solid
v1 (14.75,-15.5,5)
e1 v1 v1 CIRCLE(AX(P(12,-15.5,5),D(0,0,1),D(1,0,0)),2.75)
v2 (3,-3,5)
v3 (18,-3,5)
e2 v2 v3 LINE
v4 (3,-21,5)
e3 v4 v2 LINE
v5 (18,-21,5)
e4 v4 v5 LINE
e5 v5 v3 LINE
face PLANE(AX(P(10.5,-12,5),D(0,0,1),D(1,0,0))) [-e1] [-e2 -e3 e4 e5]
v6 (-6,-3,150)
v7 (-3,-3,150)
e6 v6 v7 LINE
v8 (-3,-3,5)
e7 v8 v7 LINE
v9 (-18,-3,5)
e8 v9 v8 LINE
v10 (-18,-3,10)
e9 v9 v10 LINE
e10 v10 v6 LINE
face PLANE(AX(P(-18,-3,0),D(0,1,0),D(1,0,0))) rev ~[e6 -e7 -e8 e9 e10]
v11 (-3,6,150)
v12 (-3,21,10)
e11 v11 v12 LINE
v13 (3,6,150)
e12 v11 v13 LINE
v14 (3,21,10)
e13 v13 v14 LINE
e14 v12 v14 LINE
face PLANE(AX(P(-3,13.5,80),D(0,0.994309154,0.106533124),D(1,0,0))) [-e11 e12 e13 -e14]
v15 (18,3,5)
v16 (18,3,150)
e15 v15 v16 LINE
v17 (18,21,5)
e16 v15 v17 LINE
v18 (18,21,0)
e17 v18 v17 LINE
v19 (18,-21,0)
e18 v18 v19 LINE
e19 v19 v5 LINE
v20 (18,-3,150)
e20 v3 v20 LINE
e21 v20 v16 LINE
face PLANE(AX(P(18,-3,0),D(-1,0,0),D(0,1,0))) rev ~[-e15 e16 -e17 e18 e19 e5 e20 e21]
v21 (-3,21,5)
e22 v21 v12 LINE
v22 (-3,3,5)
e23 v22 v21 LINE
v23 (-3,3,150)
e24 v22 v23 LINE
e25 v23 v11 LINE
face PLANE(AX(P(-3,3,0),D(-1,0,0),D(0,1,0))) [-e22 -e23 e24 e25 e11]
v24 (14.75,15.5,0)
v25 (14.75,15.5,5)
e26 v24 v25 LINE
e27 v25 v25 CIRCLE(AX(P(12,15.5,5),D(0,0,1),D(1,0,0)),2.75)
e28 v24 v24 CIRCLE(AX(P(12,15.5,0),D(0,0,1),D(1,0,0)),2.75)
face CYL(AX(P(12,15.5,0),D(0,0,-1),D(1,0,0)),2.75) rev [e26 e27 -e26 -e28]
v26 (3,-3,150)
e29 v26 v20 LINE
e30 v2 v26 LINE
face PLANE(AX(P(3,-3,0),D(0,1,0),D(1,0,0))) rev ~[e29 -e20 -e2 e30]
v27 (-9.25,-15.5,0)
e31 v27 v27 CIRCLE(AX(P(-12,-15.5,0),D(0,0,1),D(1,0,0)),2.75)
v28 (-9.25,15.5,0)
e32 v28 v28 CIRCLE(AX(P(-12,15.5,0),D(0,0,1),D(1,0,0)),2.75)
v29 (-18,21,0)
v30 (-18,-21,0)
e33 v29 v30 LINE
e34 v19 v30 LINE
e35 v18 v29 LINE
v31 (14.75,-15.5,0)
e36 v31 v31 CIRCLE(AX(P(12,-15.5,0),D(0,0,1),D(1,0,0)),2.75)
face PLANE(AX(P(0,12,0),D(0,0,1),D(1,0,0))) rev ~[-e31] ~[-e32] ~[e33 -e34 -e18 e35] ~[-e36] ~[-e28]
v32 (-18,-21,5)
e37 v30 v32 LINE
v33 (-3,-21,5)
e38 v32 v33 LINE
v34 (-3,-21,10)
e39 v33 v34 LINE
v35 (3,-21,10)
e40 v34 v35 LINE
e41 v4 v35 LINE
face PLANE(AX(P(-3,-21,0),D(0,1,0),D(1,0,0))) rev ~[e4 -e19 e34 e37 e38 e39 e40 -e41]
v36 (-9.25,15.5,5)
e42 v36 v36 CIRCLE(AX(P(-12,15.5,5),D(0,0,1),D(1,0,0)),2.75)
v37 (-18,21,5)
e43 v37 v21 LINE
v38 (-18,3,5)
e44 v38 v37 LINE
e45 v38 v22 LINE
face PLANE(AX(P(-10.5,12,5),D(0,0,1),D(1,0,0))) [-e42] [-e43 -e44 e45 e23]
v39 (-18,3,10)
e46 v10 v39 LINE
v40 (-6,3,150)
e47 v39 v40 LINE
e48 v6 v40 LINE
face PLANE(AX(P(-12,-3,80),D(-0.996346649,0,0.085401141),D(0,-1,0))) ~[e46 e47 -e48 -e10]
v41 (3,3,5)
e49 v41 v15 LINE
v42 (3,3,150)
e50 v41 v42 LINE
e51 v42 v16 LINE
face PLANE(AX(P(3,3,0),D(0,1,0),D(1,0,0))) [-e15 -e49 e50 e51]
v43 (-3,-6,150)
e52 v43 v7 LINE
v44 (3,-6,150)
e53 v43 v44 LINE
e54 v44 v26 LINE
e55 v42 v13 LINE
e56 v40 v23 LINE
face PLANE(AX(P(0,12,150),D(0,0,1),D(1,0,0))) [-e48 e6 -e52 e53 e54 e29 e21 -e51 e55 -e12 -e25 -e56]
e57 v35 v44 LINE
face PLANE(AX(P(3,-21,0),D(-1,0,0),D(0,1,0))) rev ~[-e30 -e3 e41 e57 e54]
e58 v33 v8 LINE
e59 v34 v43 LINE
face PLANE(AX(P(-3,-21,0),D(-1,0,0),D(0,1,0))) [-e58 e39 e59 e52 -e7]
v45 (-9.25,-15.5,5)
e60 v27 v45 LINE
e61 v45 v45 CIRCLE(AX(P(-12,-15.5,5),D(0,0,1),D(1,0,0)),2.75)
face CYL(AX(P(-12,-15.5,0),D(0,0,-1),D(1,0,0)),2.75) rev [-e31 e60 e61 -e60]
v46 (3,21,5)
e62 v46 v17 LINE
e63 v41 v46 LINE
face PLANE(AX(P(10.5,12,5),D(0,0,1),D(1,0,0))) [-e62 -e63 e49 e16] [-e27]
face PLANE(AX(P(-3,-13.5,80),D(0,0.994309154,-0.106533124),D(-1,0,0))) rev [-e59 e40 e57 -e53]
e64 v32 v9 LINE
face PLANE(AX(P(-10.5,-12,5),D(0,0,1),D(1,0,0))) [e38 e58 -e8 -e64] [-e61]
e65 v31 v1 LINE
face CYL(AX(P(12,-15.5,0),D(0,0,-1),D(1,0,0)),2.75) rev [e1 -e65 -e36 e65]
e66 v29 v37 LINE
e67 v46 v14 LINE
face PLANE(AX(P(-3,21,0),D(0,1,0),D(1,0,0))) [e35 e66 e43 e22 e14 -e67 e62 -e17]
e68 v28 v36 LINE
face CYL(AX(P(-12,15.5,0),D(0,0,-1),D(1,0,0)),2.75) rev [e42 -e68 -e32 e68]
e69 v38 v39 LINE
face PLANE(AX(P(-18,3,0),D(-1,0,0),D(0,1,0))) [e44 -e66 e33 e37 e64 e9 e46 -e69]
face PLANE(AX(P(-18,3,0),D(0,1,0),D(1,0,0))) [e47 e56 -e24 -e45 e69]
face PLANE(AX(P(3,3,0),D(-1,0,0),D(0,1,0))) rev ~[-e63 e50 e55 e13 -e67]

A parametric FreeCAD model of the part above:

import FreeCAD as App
import Part
import Sketcher
from FreeCAD import Vector
Q = App.Units.Quantity


def edges_at(feature, points):
    """Names of the edges that pass closest to the given points."""
    edges = feature.Shape.Edges
    near = lambda p: min(range(len(edges)), key=lambda i: edges[i].distToShape(Part.Vertex(*p))[0])
    return sorted({f"Edge{near(p) + 1}" for p in points})


def add_polygon(sketch, points):
    """Adds a closed chain of lines whose ends are joined by coincident constraints."""
    first, n = sketch.GeometryCount, len(points)
    for a, b in zip(points, points[1:] + points[:1]):
        sketch.addGeometry(Part.LineSegment(App.Vector(*a, 0), App.Vector(*b, 0)), False)
    for i in range(n):
        sketch.addConstraint(Sketcher.Constraint("Coincident", first + i, 2, first + (i + 1) % n, 1))

doc = App.newDocument("Part")
body = doc.addObject("PartDesign::Body", "Body")

# Sketch on XY plane
sketch1 = body.newObject("Sketcher::SketchObject", "Sketch")
sketch1.AttachmentSupport = (doc.getObject("XY_Plane"), [""])
sketch1.MapMode = "FlatFace"
add_polygon(sketch1, [(3, 21), (3, 3), (18, 3), (18, 21)])  # lines 0-3
sketch1.addGeometry(Part.Circle(Vector(12, 15.5, 0), Vector(0, 0, 1), 2.8), False)  # 4
sketch1.addConstraint([
    Sketcher.Constraint("Vertical", 0),
    Sketcher.Constraint("Horizontal", 1),
    Sketcher.Constraint("Vertical", 2),
    Sketcher.Constraint("Horizontal", 3),
    Sketcher.Constraint("Diameter", 4, Q("5.5 mm")),
    Sketcher.Constraint("DistanceX", 1, 1, 1, 2, Q("15 mm")),
    Sketcher.Constraint("DistanceY", 0, 2, 0, 1, Q("18 mm")),
    Sketcher.Constraint("DistanceX", -1, 1, 4, 3, Q("12 mm")),
    Sketcher.Constraint("DistanceX", -1, 1, 0, 2, Q("3 mm")),
    Sketcher.Constraint("DistanceY", -1, 1, 0, 2, Q("3 mm")),
    Sketcher.Constraint("DistanceY", -1, 1, 4, 3, Q("15.5 mm")),
])
pad1 = body.newObject("PartDesign::Pad", "Pad")
pad1.Profile = sketch1
pad1.Length = 5
body2 = doc.addObject("PartDesign::Body", "Body001")

# Sketch on XY plane
sketch2 = body2.newObject("Sketcher::SketchObject", "Sketch001")
sketch2.AttachmentSupport = (doc.getObject("XY_Plane001"), [""])
sketch2.MapMode = "FlatFace"
add_polygon(sketch2, [(-18, 21), (-18, 3), (-3, 3), (-3, 21)])  # lines 0-3
sketch2.addGeometry(Part.Circle(Vector(-12, 15.5, 0), Vector(0, 0, 1), 2.8), False)  # 4
sketch2.addConstraint([
    Sketcher.Constraint("Vertical", 0),
    Sketcher.Constraint("Horizontal", 1),
    Sketcher.Constraint("Vertical", 2),
    Sketcher.Constraint("Horizontal", 3),
    Sketcher.Constraint("Diameter", 4, Q("5.5 mm")),
    Sketcher.Constraint("DistanceX", 1, 1, 1, 2, Q("15 mm")),
    Sketcher.Constraint("DistanceY", 0, 2, 0, 1, Q("18 mm")),
    Sketcher.Constraint("DistanceX", 4, 3, -1, 1, Q("12 mm")),
    Sketcher.Constraint("DistanceX", 0, 2, -1, 1, Q("18 mm")),
    Sketcher.Constraint("DistanceY", -1, 1, 0, 2, Q("3 mm")),
    Sketcher.Constraint("DistanceY", -1, 1, 4, 3, Q("15.5 mm")),
])
pad2 = body2.newObject("PartDesign::Pad", "Pad001")
pad2.Profile = sketch2
pad2.Length = 5
body3 = doc.addObject("PartDesign::Body", "Body002")

# Sketch on XY plane
sketch3 = body3.newObject("Sketcher::SketchObject", "Sketch002")
sketch3.AttachmentSupport = (doc.getObject("XY_Plane002"), [""])
sketch3.MapMode = "FlatFace"
add_polygon(sketch3, [(-18, -3), (-18, -21), (-3, -21), (-3, -3)])  # lines 0-3
sketch3.addGeometry(Part.Circle(Vector(-12, -15.5, 0), Vector(0, 0, 1), 2.8), False)  # 4
sketch3.addConstraint([
    Sketcher.Constraint("Vertical", 0),
    Sketcher.Constraint("Horizontal", 1),
    Sketcher.Constraint("Vertical", 2),
    Sketcher.Constraint("Horizontal", 3),
    Sketcher.Constraint("Diameter", 4, Q("5.5 mm")),
    Sketcher.Constraint("DistanceX", 1, 1, 1, 2, Q("15 mm")),
    Sketcher.Constraint("DistanceY", 0, 2, 0, 1, Q("18 mm")),
    Sketcher.Constraint("DistanceX", 4, 3, -1, 1, Q("12 mm")),
    Sketcher.Constraint("DistanceX", 0, 2, -1, 1, Q("18 mm")),
    Sketcher.Constraint("DistanceY", 0, 2, -1, 1, Q("21 mm")),
    Sketcher.Constraint("DistanceY", 4, 3, -1, 1, Q("15.5 mm")),
])
pad3 = body3.newObject("PartDesign::Pad", "Pad002")
pad3.Profile = sketch3
pad3.Length = 5
body4 = doc.addObject("PartDesign::Body", "Body003")

# Sketch on XY plane
sketch4 = body4.newObject("Sketcher::SketchObject", "Sketch003")
sketch4.AttachmentSupport = (doc.getObject("XY_Plane003"), [""])
sketch4.MapMode = "FlatFace"
add_polygon(sketch4, [(3, -3), (3, -21), (18, -21), (18, -3)])  # lines 0-3
sketch4.addGeometry(Part.Circle(Vector(12, -15.5, 0), Vector(0, 0, 1), 2.8), False)  # 4
sketch4.addConstraint([
    Sketcher.Constraint("Vertical", 0),
    Sketcher.Constraint("Horizontal", 1),
    Sketcher.Constraint("Vertical", 2),
    Sketcher.Constraint("Horizontal", 3),
    Sketcher.Constraint("Diameter", 4, Q("5.5 mm")),
    Sketcher.Constraint("DistanceX", 1, 1, 1, 2, Q("15 mm")),
    Sketcher.Constraint("DistanceY", 0, 2, 0, 1, Q("18 mm")),
    Sketcher.Constraint("DistanceX", -1, 1, 4, 3, Q("12 mm")),
    Sketcher.Constraint("DistanceX", -1, 1, 0, 2, Q("3 mm")),
    Sketcher.Constraint("DistanceY", 0, 2, -1, 1, Q("21 mm")),
    Sketcher.Constraint("DistanceY", 4, 3, -1, 1, Q("15.5 mm")),
])
pad4 = body4.newObject("PartDesign::Pad", "Pad003")
pad4.Profile = sketch4
pad4.Length = 5
body.AllowCompound = True
doc.recompute()

boolean = body.newObject("PartDesign::Boolean", "Boolean")
boolean.Type = "Fuse"
boolean.addObjects([body2])
doc.recompute()

boolean2 = body.newObject("PartDesign::Boolean", "Boolean001")
boolean2.Type = "Fuse"
boolean2.addObjects([body3])
doc.recompute()

boolean3 = body.newObject("PartDesign::Boolean", "Boolean002")
boolean3.Type = "Fuse"
boolean3.addObjects([body4])

# Sketch on XY plane
sketch5 = body.newObject("Sketcher::SketchObject", "Sketch004")
sketch5.AttachmentSupport = (doc.getObject("XY_Plane"), [""])
sketch5.MapMode = "FlatFace"
add_polygon(sketch5, [(-3, 21), (-3, 3), (-18, 3), (-18, -3), (-3, -3), (-3, -21), (3, -21), (3, -3), (18, -3), (18, 3), (3, 3), (3, 21)])  # lines 0-11
sketch5.addConstraint([
    Sketcher.Constraint("Vertical", 0),
    Sketcher.Constraint("Horizontal", 1),
    Sketcher.Constraint("Vertical", 2),
    Sketcher.Constraint("Horizontal", 3),
    Sketcher.Constraint("Vertical", 4),
    Sketcher.Constraint("Horizontal", 5),
    Sketcher.Constraint("Vertical", 6),
    Sketcher.Constraint("Horizontal", 7),
    Sketcher.Constraint("Vertical", 8),
    Sketcher.Constraint("Horizontal", 9),
    Sketcher.Constraint("Vertical", 10),
    Sketcher.Constraint("Horizontal", 11),
    Sketcher.Constraint("Symmetric", 0, 2, 6, 2, -1, 1),
    Sketcher.Constraint("Symmetric", 2, 2, 8, 2, -1, 1),
    Sketcher.Constraint("Symmetric", 4, 2, 10, 2, -1, 1),
    Sketcher.Constraint("Symmetric", 3, 2, 6, 2, -2),
    Sketcher.Constraint("Equal", 11, 2),
    Sketcher.Constraint("DistanceX", 1, 2, 1, 1, Q("15 mm")),
    Sketcher.Constraint("DistanceX", 5, 1, 5, 2, Q("6 mm")),
    Sketcher.Constraint("DistanceY", 0, 2, 0, 1, Q("18 mm")),
])
pad5 = body.newObject("PartDesign::Pad", "Pad004")
pad5.Profile = sketch5
pad5.Length = 150
doc.recompute()

chamfer = body.newObject("PartDesign::Chamfer", "Chamfer")
chamfer.Base = (pad5, edges_at(pad5, [(0, 21, 150)]))
chamfer.ChamferType = "Two distances"
chamfer.Size = 15
chamfer.Size2 = 140
doc.recompute()

chamfer2 = body.newObject("PartDesign::Chamfer", "Chamfer001")
chamfer2.Base = (chamfer, edges_at(chamfer, [(0, -21, 150)]))
chamfer2.ChamferType = "Two distances"
chamfer2.Size = 140
chamfer2.Size2 = 15
chamfer2.FlipDirection = True
doc.recompute()

chamfer3 = body.newObject("PartDesign::Chamfer", "Chamfer002")
chamfer3.Base = (chamfer2, edges_at(chamfer2, [(-18, 0, 150)]))
chamfer3.ChamferType = "Two distances"
chamfer3.Size = 140
chamfer3.Size2 = 12
chamfer3.FlipDirection = True

doc.recompute()
